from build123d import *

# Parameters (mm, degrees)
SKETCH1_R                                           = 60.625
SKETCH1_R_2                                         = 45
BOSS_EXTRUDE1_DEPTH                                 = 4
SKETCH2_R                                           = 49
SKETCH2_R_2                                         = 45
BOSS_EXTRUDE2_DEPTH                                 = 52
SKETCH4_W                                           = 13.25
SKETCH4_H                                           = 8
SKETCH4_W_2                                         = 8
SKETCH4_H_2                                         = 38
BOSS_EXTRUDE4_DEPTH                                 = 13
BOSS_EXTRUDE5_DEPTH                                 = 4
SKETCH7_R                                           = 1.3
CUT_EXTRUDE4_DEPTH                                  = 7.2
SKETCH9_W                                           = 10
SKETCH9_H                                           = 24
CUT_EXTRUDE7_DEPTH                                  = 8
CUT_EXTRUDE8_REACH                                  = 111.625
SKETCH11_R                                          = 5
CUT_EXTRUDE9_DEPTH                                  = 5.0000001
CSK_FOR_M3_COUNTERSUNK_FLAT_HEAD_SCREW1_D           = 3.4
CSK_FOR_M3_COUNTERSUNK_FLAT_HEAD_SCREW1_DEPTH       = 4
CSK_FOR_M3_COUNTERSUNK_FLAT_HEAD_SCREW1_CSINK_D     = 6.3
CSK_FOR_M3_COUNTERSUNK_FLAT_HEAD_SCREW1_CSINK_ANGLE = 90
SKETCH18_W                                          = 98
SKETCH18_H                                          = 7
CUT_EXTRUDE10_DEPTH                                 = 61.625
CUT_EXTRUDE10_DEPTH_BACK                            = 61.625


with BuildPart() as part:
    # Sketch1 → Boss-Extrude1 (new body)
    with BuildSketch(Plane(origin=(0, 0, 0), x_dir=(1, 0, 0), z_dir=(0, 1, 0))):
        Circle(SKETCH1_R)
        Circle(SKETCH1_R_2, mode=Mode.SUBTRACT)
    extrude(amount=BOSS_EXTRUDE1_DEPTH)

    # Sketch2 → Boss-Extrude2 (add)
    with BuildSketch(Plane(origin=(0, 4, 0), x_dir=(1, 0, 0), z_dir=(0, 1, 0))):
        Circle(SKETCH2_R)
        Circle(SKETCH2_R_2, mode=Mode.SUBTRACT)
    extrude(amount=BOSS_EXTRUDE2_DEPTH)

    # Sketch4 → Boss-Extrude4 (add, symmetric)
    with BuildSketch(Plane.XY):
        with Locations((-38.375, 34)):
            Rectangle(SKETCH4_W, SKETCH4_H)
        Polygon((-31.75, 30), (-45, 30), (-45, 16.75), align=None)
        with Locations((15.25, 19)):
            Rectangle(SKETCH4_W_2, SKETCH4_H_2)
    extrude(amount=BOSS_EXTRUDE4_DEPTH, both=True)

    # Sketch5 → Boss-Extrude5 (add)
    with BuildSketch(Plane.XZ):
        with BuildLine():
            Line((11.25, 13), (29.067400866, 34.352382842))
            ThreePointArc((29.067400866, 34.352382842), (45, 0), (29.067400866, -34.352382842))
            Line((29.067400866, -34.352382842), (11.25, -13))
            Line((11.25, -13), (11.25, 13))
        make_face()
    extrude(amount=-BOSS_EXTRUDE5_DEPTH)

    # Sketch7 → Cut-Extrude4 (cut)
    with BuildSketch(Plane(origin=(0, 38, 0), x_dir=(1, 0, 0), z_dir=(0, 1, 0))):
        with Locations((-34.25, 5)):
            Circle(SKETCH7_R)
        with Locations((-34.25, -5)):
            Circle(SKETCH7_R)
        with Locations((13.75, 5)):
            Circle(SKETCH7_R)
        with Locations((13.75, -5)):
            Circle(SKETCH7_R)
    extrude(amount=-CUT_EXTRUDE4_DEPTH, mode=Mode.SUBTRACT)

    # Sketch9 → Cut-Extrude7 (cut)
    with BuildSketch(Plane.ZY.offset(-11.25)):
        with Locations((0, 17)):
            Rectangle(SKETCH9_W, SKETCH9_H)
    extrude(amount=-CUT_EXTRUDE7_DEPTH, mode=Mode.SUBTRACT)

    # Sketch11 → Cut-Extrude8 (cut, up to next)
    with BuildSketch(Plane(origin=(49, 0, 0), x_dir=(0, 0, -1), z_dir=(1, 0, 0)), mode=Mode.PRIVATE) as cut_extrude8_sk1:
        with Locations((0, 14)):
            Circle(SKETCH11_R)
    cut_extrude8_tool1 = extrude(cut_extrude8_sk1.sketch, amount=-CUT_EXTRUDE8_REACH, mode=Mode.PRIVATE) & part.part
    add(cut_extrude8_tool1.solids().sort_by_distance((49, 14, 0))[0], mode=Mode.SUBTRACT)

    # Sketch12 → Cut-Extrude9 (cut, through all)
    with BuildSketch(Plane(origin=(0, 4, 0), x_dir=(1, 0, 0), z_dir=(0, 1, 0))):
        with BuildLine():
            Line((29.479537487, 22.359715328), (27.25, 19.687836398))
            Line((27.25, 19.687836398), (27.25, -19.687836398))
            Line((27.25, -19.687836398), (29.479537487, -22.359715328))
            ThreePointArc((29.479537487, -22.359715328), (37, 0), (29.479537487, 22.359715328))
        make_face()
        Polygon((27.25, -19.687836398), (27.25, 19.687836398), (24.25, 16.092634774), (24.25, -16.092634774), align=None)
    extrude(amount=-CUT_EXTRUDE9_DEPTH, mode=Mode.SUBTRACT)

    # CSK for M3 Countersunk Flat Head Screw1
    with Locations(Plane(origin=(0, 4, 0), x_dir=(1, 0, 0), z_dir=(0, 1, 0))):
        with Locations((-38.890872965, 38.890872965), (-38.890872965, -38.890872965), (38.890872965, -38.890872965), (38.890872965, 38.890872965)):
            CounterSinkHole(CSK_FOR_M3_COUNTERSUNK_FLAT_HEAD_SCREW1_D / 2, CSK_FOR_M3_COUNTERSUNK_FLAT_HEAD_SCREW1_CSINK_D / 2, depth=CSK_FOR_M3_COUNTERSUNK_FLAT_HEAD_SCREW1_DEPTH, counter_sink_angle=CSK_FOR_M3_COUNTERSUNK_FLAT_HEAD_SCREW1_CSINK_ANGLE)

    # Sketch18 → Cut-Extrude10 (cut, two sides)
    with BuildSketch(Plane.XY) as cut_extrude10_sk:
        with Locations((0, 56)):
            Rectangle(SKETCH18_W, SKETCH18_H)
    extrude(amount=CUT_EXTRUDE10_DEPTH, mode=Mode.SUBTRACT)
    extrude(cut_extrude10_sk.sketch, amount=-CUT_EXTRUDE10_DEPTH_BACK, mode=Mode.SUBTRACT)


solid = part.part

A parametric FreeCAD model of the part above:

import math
import FreeCAD as App
import Part
import Sketcher

V = App.Vector
Q = App.Units.Quantity


def add_polygon(sketch, points):
    """Adds a closed chain of lines whose ends are joined by coincident constraints."""
    first, n = sketch.GeometryCount, len(points)
    for a, b in zip(points, points[1:] + points[:1]):
        sketch.addGeometry(Part.LineSegment(App.Vector(*a, 0), App.Vector(*b, 0)), False)
    for i in range(n):
        sketch.addConstraint(Sketcher.Constraint("Coincident", first + i, 2, first + (i + 1) % n, 1))

doc = App.newDocument("Part")
body = doc.addObject("PartDesign::Body", "Body")
body.AllowCompound = True

sketch1 = doc.addObject("Sketcher::SketchObject", "Sketch")
body.addObject(sketch1)
sketch1.AttachmentSupport = (doc.XZ_Plane, [""])
sketch1.MapMode = "FlatFace"
sketch1.addGeometry([
    Part.Circle(V(0, 0, 0), V(0, 0, 1), 61),
    Part.Circle(V(0, 0, 0), V(0, 0, 1), 45),
], False)
sketch1.addConstraint([
    Sketcher.Constraint("Coincident", 0, 3, -1, 1),
    Sketcher.Constraint("Coincident", 1, 3, -1, 1),
    Sketcher.Constraint("Diameter", 1, 90.0),
    Sketcher.Constraint("Diameter", 0, 121.25),
])
pad1 = doc.addObject("PartDesign::Pad", "Pad")
body.addObject(pad1)
pad1.Profile = sketch1
pad1.Length = 4
pad1.Reversed = True

sketch2 = doc.addObject("Sketcher::SketchObject", "Sketch001")
body.addObject(sketch2)
sketch2.AttachmentSupport = (doc.XZ_Plane, [""])
sketch2.MapMode = "FlatFace"
sketch2.AttachmentOffset = App.Placement(V(0, 0, -4), App.Rotation())
sketch2.addGeometry([
    Part.Circle(V(0, 0, 0), V(0, 0, 1), 49),
    Part.Circle(V(0, 0, 0), V(0, 0, 1), 45),
], False)
sketch2.addConstraint([
    Sketcher.Constraint("Coincident", 0, 3, -1, 1),
    Sketcher.Constraint("Coincident", 1, 3, -1, 1),
    Sketcher.Constraint("Diameter", 0, 98.0),
    Sketcher.Constraint("Diameter", 1, 90.0),
])
pad2 = doc.addObject("PartDesign::Pad", "Pad001")
body.addObject(pad2)
pad2.Profile = sketch2
pad2.Length = 52
pad2.Reversed = True

sketch3 = doc.addObject("Sketcher::SketchObject", "Sketch002")
body.addObject(sketch3)
sketch3.AttachmentSupport = (doc.XY_Plane, [""])
sketch3.MapMode = "FlatFace"
add_polygon(sketch3, [(-45, 38), (-45, 17), (-32, 30), (-32, 38)])
add_polygon(sketch3, [(11, 38), (11, 0), (19, 0), (19, 38)])
sketch3.addConstraint([
    Sketcher.Constraint("Vertical", 0),
    Sketcher.Constraint("Vertical", 2),
    Sketcher.Constraint("Horizontal", 3),
    Sketcher.Constraint("Vertical", 4),
    Sketcher.Constraint("Horizontal", 5),
    Sketcher.Constraint("Vertical", 6),
    Sketcher.Constraint("Horizontal", 7),
    Sketcher.Constraint("PointOnObject", 4, 2, -1),
    Sketcher.Constraint("Horizontal", 3, 2, 6, 2),
    Sketcher.Constraint("Equal", 7, 2),
    Sketcher.Constraint("DistanceX", 5, 1, 5, 2, 8.0),
    Sketcher.Constraint("DistanceY", 4, 2, 4, 1, 38.0),
    Sketcher.Constraint("Angle", 1, Q("45 deg")),
    Sketcher.Constraint("DistanceX", 0, 2, -1, 1, 45.0),
    Sketcher.Constraint("DistanceX", 1, 2, 4, 2, 43.0),
    Sketcher.Constraint("DistanceX", 3, 2, 3, 1, 13.25),
])
pad3 = doc.addObject("PartDesign::Pad", "Pad002")
body.addObject(pad3)
pad3.Profile = sketch3
pad3.Length = 26
pad3.Midplane = True

sketch4 = doc.addObject("Sketcher::SketchObject", "Sketch003")
body.addObject(sketch4)
sketch4.AttachmentSupport = (doc.XZ_Plane, [""])
sketch4.MapMode = "FlatFace"
sketch4.addGeometry([
    Part.LineSegment(V(29, 34, 0), V(11, 13, 0)),
    Part.LineSegment(V(11, 13, 0), V(11, -13, 0)),
    Part.LineSegment(V(11, -13, 0), V(29, -34, 0)),
    Part.ArcOfCircle(Part.Circle(V(0, 0, 0), V(0, 0, 1), 45), math.radians(-50), math.radians(50)),
], False)
sketch4.addConstraint([
    Sketcher.Constraint("Coincident", 0, 2, 1, 1),
    Sketcher.Constraint("Coincident", 1, 2, 2, 1),
    Sketcher.Constraint("Coincident", 2, 2, 3, 1),
    Sketcher.Constraint("Coincident", 3, 2, 0, 1),
    Sketcher.Constraint("Vertical", 1),
    Sketcher.Constraint("Coincident", 3, 3, -1, 1),
    Sketcher.Constraint("Vertical", 2, 2, 3, 2),
    Sketcher.Constraint("Equal", 0, 2),
    Sketcher.Constraint("Radius", 3, 45.0),
    Sketcher.Constraint("DistanceY", 1, 2, 1, 1, 26.0),
    Sketcher.Constraint("DistanceX", -1, 1, 0, 2, 11.25),
    Sketcher.Constraint("DistanceX", -1, 1, 2, 2, 29.067401),
])
pad4 = doc.addObject("PartDesign::Pad", "Pad003")
body.addObject(pad4)
pad4.Profile = sketch4
pad4.Length = 4
pad4.Reversed = True

sketch5 = doc.addObject("Sketcher::SketchObject", "Sketch004")
body.addObject(sketch5)
sketch5.AttachmentSupport = (doc.XZ_Plane, [""])
sketch5.MapMode = "FlatFace"
sketch5.AttachmentOffset = App.Placement(V(0, 0, -38), App.Rotation())
sketch5.addGeometry([
    Part.Circle(V(-34.2, -5, 0), V(0, 0, 1), 1.3),
    Part.Circle(V(-34.2, 5, 0), V(0, 0, 1), 1.3),
    Part.Circle(V(13.8, -5, 0), V(0, 0, 1), 1.3),
    Part.Circle(V(13.8, 5, 0), V(0, 0, 1), 1.3),
], False)
sketch5.addConstraint([
    Sketcher.Constraint("Equal", 0, 1),
    Sketcher.Constraint("Equal", 1, 2),
    Sketcher.Constraint("Equal", 2, 3),
    Sketcher.Constraint("Symmetric", 0, 3, 1, 3, -1),
    Sketcher.Constraint("Symmetric", 2, 3, 3, 3, -1),
    Sketcher.Constraint("Horizontal", 0, 3, 2, 3),
    Sketcher.Constraint("Diameter", 0, 2.6),
    Sketcher.Constraint("DistanceY", 0, 3, -1, 1, 5.0),
    Sketcher.Constraint("DistanceX", 0, 3, 2, 3, 48.0),
    Sketcher.Constraint("DistanceX", 0, 3, -1, 1, 34.25),
])
pocket1 = doc.addObject("PartDesign::Pocket", "Pocket")
body.addObject(pocket1)
pocket1.Profile = sketch5
pocket1.Length = 7.2
pocket1.Reversed = True

sketch6 = doc.addObject("Sketcher::SketchObject", "Sketch005")
body.addObject(sketch6)
sketch6.AttachmentSupport = (doc.YZ_Plane, [""])
sketch6.MapMode = "FlatFace"
sketch6.AttachmentOffset = App.Placement(V(0, 0, 11.25), App.Rotation())
add_polygon(sketch6, [(29, -5), (5, -5), (5, 5), (29, 5)])
sketch6.addConstraint([
    Sketcher.Constraint("Horizontal", 0),
    Sketcher.Constraint("Vertical", 1),
    Sketcher.Constraint("Horizontal", 2),
    Sketcher.Constraint("Vertical", 3),
    Sketcher.Constraint("DistanceX", 0, 2, 0, 1, 24.0),
    Sketcher.Constraint("DistanceY", 1, 1, 1, 2, 10.0),
    Sketcher.Constraint("DistanceX", -1, 1, 0, 2, 5.0),
    Sketcher.Constraint("DistanceY", 0, 2, -1, 1, 5.0),
])
pocket2 = doc.addObject("PartDesign::Pocket", "Pocket001")
body.addObject(pocket2)
pocket2.Profile = sketch6
pocket2.Length = 8
pocket2.Reversed = True

sketch7 = doc.addObject("Sketcher::SketchObject", "Sketch006")
body.addObject(sketch7)
sketch7.AttachmentSupport = (doc.YZ_Plane, [""])
sketch7.MapMode = "FlatFace"
sketch7.AttachmentOffset = App.Placement(V(0, 0, 49), App.Rotation())
sketch7.addGeometry(Part.Circle(V(14, 0, 0), V(0, 0, 1), 5), False)
sketch7.addConstraint([
    Sketcher.Constraint("PointOnObject", 0, 3, -1),
    Sketcher.Constraint("Diameter", 0, 10.0),
    Sketcher.Constraint("DistanceX", -1, 1, 0, 3, 14.0),
])
pocket3 = doc.addObject("PartDesign::Pocket", "Pocket002")
body.addObject(pocket3)
pocket3.Profile = sketch7
pocket3.Type = "UpToFirst"

sketch8 = doc.addObject("Sketcher::SketchObject", "Sketch007")
body.addObject(sketch8)
sketch8.AttachmentSupport = (doc.XZ_Plane, [""])
sketch8.MapMode = "FlatFace"
sketch8.AttachmentOffset = App.Placement(V(0, 0, -4), App.Rotation())
sketch8.addGeometry([
    Part.LineSegment(V(29.5, -22.4, 0), V(27.2, -19.7, 0)),
    Part.LineSegment(V(27.2, -19.7, 0), V(24.2, -16.1, 0)),
    Part.LineSegment(V(24.2, -16.1, 0), V(24.2, 16.1, 0)),
    Part.LineSegment(V(24.2, 16.1, 0), V(27.2, 19.7, 0)),
    Part.LineSegment(V(27.2, 19.7, 0), V(29.5, 22.4, 0)),
    Part.ArcOfCircle(Part.Circle(V(0, 0, 0), V(0, 0, 1), 37), math.radians(-37), math.radians(37)),
], False)
sketch8.addConstraint([
    Sketcher.Constraint("Coincident", 0, 2, 1, 1),
    Sketcher.Constraint("Coincident", 1, 2, 2, 1),
    Sketcher.Constraint("Coincident", 2, 2, 3, 1),
    Sketcher.Constraint("Coincident", 3, 2, 4, 1),
    Sketcher.Constraint("Coincident", 4, 2, 5, 2),
    Sketcher.Constraint("Coincident", 5, 1, 0, 1),
    Sketcher.Constraint("Vertical", 2),
    Sketcher.Constraint("Coincident", 5, 3, -1, 1),
    Sketcher.Constraint("Symmetric", 0, 2, 3, 2, -1),
    Sketcher.Constraint("Parallel", 0, 1),
    Sketcher.Constraint("Parallel", 3, 4),
    Sketcher.Constraint("Vertical", 4, 2, 5, 1),
    Sketcher.Constraint("Radius", 5, 37.0),
    Sketcher.Constraint("DistanceX", 1, 2, 0, 2, 3.0),
    Sketcher.Constraint("DistanceX", -1, 1, 0, 2, 27.25),
    Sketcher.Constraint("DistanceY", 2, 1, 2, 2, 32.18527),
    Sketcher.Constraint("DistanceY", 0, 2, 1, 2, 3.595202),
])
pocket4 = doc.addObject("PartDesign::Pocket", "Pocket003")
body.addObject(pocket4)
pocket4.Profile = sketch8
pocket4.Type = "ThroughAll"
pocket4.Reversed = True

sketch9 = doc.addObject("Sketcher::SketchObject", "Sketch008")
body.addObject(sketch9)
sketch9.AttachmentSupport = (doc.XZ_Plane, [""])
sketch9.MapMode = "FlatFace"
sketch9.AttachmentOffset = App.Placement(V(0, 0, -4), App.Rotation())
sketch9.addGeometry([
    Part.Circle(V(-38.9, -38.9, 0), V(0, 0, 1), 1.7),
    Part.Circle(V(-38.9, 38.9, 0), V(0, 0, 1), 1.7),
    Part.Circle(V(38.9, 38.9, 0), V(0, 0, 1), 1.7),
    Part.Circle(V(38.9, -38.9, 0), V(0, 0, 1), 1.7),
], False)
sketch9.addConstraint([
    Sketcher.Constraint("Equal", 0, 1),
    Sketcher.Constraint("Equal", 1, 2),
    Sketcher.Constraint("Equal", 2, 3),
    Sketcher.Constraint("Symmetric", 0, 3, 2, 3, -1, 1),
    Sketcher.Constraint("Symmetric", 1, 3, 3, 3, -1, 1),
    Sketcher.Constraint("Symmetric", 1, 3, 2, 3, -2),
    Sketcher.Constraint("Diameter", 0, 3.4),
    Sketcher.Constraint("DistanceX", 0, 3, -1, 1, 38.890873),
    Sketcher.Constraint("DistanceY", 0, 3, -1, 1, 38.890873),
])
doc.recompute()
hole = doc.addObject("PartDesign::Hole", "Hole")
body.addObject(hole)
hole.Profile = sketch9
hole.ThreadType = "None"
hole.Diameter = 3.4
hole.DepthType = "Dimension"
hole.Depth = 4
hole.DrillPoint = "Flat"
hole.HoleCutType = "Countersink"
hole.HoleCutDiameter = 6.3
hole.HoleCutCountersinkAngle = 90
hole.Reversed = True

sketch10 = doc.addObject("Sketcher::SketchObject", "Sketch009")
body.addObject(sketch10)
sketch10.AttachmentSupport = (doc.XY_Plane, [""])
sketch10.MapMode = "FlatFace"
add_polygon(sketch10, [(-49, 60), (-49, 52), (49, 52), (49, 60)])
sketch10.addConstraint([
    Sketcher.Constraint("Vertical", 0),
    Sketcher.Constraint("Horizontal", 1),
    Sketcher.Constraint("Vertical", 2),
    Sketcher.Constraint("Horizontal", 3),
    Sketcher.Constraint("DistanceX", 1, 1, 1, 2, 98.0),
    Sketcher.Constraint("DistanceY", 0, 2, 0, 1, 7.0),
    Sketcher.Constraint("DistanceX", 0, 2, -1, 1, 49.0),
    Sketcher.Constraint("DistanceY", -1, 1, 0, 2, 52.5),
])
pocket5 = doc.addObject("PartDesign::Pocket", "Pocket004")
body.addObject(pocket5)
pocket5.Profile = sketch10
pocket5.Type = "ThroughAll"
pocket5.Midplane = True

doc.recompute()
